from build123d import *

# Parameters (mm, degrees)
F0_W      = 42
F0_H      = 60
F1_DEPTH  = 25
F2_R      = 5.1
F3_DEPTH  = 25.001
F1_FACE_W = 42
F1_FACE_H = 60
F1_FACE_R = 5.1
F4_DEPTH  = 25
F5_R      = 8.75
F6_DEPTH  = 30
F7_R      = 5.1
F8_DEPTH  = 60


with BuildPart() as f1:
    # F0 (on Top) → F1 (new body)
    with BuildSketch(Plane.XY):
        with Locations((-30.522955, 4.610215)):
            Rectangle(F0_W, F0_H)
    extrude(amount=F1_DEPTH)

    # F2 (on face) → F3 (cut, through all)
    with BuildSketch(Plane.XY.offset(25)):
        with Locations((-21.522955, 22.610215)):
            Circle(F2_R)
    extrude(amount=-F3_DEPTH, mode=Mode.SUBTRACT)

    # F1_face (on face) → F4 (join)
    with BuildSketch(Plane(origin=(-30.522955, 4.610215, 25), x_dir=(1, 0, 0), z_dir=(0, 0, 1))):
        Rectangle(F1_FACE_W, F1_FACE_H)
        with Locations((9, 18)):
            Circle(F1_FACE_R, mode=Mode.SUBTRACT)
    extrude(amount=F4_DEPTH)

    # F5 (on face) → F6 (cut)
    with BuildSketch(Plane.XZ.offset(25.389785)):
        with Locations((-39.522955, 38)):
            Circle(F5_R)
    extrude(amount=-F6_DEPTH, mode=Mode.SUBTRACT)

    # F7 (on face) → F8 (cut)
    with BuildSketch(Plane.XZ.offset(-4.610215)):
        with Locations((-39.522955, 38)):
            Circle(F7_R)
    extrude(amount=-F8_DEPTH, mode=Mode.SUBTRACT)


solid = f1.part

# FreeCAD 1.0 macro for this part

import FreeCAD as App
import Part
import Sketcher

V = App.Vector
Q = App.Units.Quantity


def add_polygon(sketch, points):
    """Adds a closed chain of lines whose ends are joined by coincident constraints."""
    first, n = sketch.GeometryCount, len(points)
    for a, b in zip(points, points[1:] + points[:1]):
        sketch.addGeometry(Part.LineSegment(App.Vector(*a, 0), App.Vector(*b, 0)), False)
    for i in range(n):
        sketch.addConstraint(Sketcher.Constraint("Coincident", first + i, 2, first + (i + 1) % n, 1))

doc = App.newDocument("Part")
body = doc.addObject("PartDesign::Body", "Body")

# Sketch on XY plane
sketch1 = doc.addObject("Sketcher::SketchObject", "Sketch")
body.addObject(sketch1)
sketch1.AttachmentSupport = (doc.XY_Plane, [""])
sketch1.MapMode = "FlatFace"
add_polygon(sketch1, [(-51.522955, 34.610215), (-51.522955, -25.389785), (-9.522955, -25.389785), (-9.522955, 34.610215)])  # lines 0-3
sketch1.addConstraint(Sketcher.Constraint("Vertical", 0))
sketch1.addConstraint(Sketcher.Constraint("Horizontal", 1))
sketch1.addConstraint(Sketcher.Constraint("Vertical", 2))
sketch1.addConstraint(Sketcher.Constraint("Horizontal", 3))
sketch1.addConstraint(Sketcher.Constraint("DistanceX", 1, 1, 1, 2, Q("42 mm")))
sketch1.addConstraint(Sketcher.Constraint("DistanceY", 0, 2, 0, 1, Q("60 mm")))
sketch1.addConstraint(Sketcher.Constraint("DistanceX", 0, 2, -1, 1, Q("51.522955 mm")))
sketch1.addConstraint(Sketcher.Constraint("DistanceY", 0, 2, -1, 1, Q("25.389785 mm")))
pad1 = doc.addObject("PartDesign::Pad", "Pad")
body.addObject(pad1)
pad1.Profile = sketch1
pad1.Length = 25

# Sketch on XY plane
sketch2 = doc.addObject("Sketcher::SketchObject", "Sketch001")
body.addObject(sketch2)
sketch2.AttachmentSupport = (doc.XY_Plane, [""])
sketch2.MapMode = "FlatFace"
sketch2.AttachmentOffset = App.Placement(V(0, 0, 25), App.Rotation())
sketch2.addGeometry(Part.Circle(V(-21.522955, 22.610215, 0), V(0, 0, 1), 5.1), False)
sketch2.addConstraint(Sketcher.Constraint("Diameter", 0, Q("10.2 mm")))
sketch2.addConstraint(Sketcher.Constraint("DistanceX", 0, 3, -1, 1, Q("21.522955 mm")))
sketch2.addConstraint(Sketcher.Constraint("DistanceY", -1, 1, 0, 3, Q("22.610215 mm")))
pocket1 = doc.addObject("PartDesign::Pocket", "Pocket")
body.addObject(pocket1)
pocket1.Profile = sketch2
pocket1.Type = "ThroughAll"

# Sketch on XY plane
sketch3 = doc.addObject("Sketcher::SketchObject", "Sketch002")
body.addObject(sketch3)
sketch3.AttachmentSupport = (doc.XY_Plane, [""])
sketch3.MapMode = "FlatFace"
sketch3.AttachmentOffset = App.Placement(V(0, 0, 25), App.Rotation())
add_polygon(sketch3, [(-51.522955, 34.610215), (-51.522955, -25.389785), (-9.522955, -25.389785), (-9.522955, 34.610215)])  # lines 0-3
sketch3.addGeometry(Part.Circle(V(-21.522955, 22.610215, 0), V(0, 0, 1), 5.1), False)  # 4
sketch3.addConstraint(Sketcher.Constraint("Vertical", 0))
sketch3.addConstraint(Sketcher.Constraint("Horizontal", 1))
sketch3.addConstraint(Sketcher.Constraint("Vertical", 2))
sketch3.addConstraint(Sketcher.Constraint("Horizontal", 3))
sketch3.addConstraint(Sketcher.Constraint("Diameter", 4, Q("10.2 mm")))
sketch3.addConstraint(Sketcher.Constraint("DistanceX", 1, 1, 1, 2, Q("42 mm")))
sketch3.addConstraint(Sketcher.Constraint("DistanceY", 0, 2, 0, 1, Q("60 mm")))
sketch3.addConstraint(Sketcher.Constraint("DistanceX", 0, 2, 4, 3, Q("30 mm")))
sketch3.addConstraint(Sketcher.Constraint("DistanceY", 0, 2, 4, 3, Q("48 mm")))
sketch3.addConstraint(Sketcher.Constraint("DistanceX", 4, 3, -1, 1, Q("21.522955 mm")))
sketch3.addConstraint(Sketcher.Constraint("DistanceY", -1, 1, 4, 3, Q("22.610215 mm")))
pad2 = doc.addObject("PartDesign::Pad", "Pad001")
body.addObject(pad2)
pad2.Profile = sketch3
pad2.Length = 25

# Sketch on XZ plane
sketch4 = doc.addObject("Sketcher::SketchObject", "Sketch003")
body.addObject(sketch4)
sketch4.AttachmentSupport = (doc.XZ_Plane, [""])
sketch4.MapMode = "FlatFace"
sketch4.AttachmentOffset = App.Placement(V(0, 0, 25.389785), App.Rotation())
sketch4.addGeometry(Part.Circle(V(-39.522955, 38, 0), V(0, 0, 1), 8.75), False)
sketch4.addConstraint(Sketcher.Constraint("Diameter", 0, Q("17.5 mm")))
sketch4.addConstraint(Sketcher.Constraint("DistanceY", -1, 1, 0, 3, Q("38 mm")))
sketch4.addConstraint(Sketcher.Constraint("DistanceX", 0, 3, -1, 1, Q("39.522955 mm")))
pocket2 = doc.addObject("PartDesign::Pocket", "Pocket001")
body.addObject(pocket2)
pocket2.Profile = sketch4
pocket2.Length = 30

# Sketch on XZ plane
sketch5 = doc.addObject("Sketcher::SketchObject", "Sketch004")
body.addObject(sketch5)
sketch5.AttachmentSupport = (doc.XZ_Plane, [""])
sketch5.MapMode = "FlatFace"
sketch5.AttachmentOffset = App.Placement(V(0, 0, -4.610215), App.Rotation())
sketch5.addGeometry(Part.Circle(V(-39.522955, 38, 0), V(0, 0, 1), 5.1), False)
sketch5.addConstraint(Sketcher.Constraint("Diameter", 0, Q("10.2 mm")))
sketch5.addConstraint(Sketcher.Constraint("DistanceY", -1, 1, 0, 3, Q("38 mm")))
sketch5.addConstraint(Sketcher.Constraint("DistanceX", 0, 3, -1, 1, Q("39.522955 mm")))
pocket3 = doc.addObject("PartDesign::Pocket", "Pocket002")
body.addObject(pocket3)
pocket3.Profile = sketch5
pocket3.Length = 60

doc.recompute()
